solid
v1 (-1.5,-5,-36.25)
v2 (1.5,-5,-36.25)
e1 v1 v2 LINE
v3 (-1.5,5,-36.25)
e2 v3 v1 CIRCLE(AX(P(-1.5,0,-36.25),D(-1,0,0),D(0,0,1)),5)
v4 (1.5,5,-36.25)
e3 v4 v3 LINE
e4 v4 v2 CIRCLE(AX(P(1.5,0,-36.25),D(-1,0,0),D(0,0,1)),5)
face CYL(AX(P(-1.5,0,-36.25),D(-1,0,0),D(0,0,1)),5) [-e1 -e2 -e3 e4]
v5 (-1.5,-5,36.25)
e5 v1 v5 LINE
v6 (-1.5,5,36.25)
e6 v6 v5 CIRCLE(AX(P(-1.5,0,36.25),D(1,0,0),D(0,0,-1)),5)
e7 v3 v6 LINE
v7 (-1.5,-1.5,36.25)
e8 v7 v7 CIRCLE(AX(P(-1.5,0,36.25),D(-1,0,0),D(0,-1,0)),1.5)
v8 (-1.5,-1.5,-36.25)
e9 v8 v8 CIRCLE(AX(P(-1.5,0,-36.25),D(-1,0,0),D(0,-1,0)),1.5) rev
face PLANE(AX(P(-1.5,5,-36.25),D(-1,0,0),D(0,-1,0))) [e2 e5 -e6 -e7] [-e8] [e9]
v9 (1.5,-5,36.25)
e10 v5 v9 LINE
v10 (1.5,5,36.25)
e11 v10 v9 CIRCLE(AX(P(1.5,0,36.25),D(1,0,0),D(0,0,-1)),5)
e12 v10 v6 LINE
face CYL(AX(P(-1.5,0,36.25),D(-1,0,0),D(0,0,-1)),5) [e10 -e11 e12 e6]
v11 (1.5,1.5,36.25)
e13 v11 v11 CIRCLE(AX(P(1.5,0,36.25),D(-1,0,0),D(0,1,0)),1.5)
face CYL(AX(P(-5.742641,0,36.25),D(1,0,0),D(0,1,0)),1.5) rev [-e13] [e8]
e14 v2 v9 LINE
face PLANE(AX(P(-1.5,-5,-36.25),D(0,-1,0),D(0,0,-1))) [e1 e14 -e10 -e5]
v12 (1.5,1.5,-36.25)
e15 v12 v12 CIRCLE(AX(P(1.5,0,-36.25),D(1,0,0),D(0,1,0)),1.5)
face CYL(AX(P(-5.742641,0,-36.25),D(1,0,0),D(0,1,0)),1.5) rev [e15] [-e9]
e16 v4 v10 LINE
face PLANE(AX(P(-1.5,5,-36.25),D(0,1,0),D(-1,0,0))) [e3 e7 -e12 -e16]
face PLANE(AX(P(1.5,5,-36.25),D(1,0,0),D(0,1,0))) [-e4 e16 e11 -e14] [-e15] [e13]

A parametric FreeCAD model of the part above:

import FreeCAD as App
import Part
import Sketcher

V = App.Vector


def add_polygon(sketch, points):
    """Adds a closed chain of lines whose ends are joined by coincident constraints."""
    first, n = sketch.GeometryCount, len(points)
    for a, b in zip(points, points[1:] + points[:1]):
        sketch.addGeometry(Part.LineSegment(App.Vector(*a, 0), App.Vector(*b, 0)), False)
    for i in range(n):
        sketch.addConstraint(Sketcher.Constraint("Coincident", first + i, 2, first + (i + 1) % n, 1))

doc = App.newDocument("Part")
params = doc.addObject("Spreadsheet::Sheet", "Params")
for row, (alias, value) in enumerate([
    ("sketch1_width", "3 mm"),
    ("sketch1_height", "10 mm"),
    ("pad1_length", "36.25 mm"),
    ("pad1_length2", "36.25 mm"),
    ("sketch2_width", "3 mm"),
    ("sketch2_height", "5 mm"),
    ("revolution_angle", "360 deg"),
    ("sketch3_diameter", "3 mm"),
    ("pocket1_length", "3 mm"),
], start=1):
    params.set(f"A{row}", alias)
    params.set(f"B{row}", "=" + value)
    params.setAlias(f"B{row}", alias)

body = doc.addObject("PartDesign::Body", "Body")

sketch1 = doc.addObject("Sketcher::SketchObject", "Sketch")
body.addObject(sketch1)
sketch1.AttachmentSupport = (doc.XY_Plane, [""])
sketch1.MapMode = "FlatFace"
add_polygon(sketch1, [(-1.5, 5), (-1.5, -5), (1.5, -5), (1.5, 5)])
sketch1.addConstraint(Sketcher.Constraint("Vertical", 0))
sketch1.addConstraint(Sketcher.Constraint("Horizontal", 1))
sketch1.addConstraint(Sketcher.Constraint("Vertical", 2))
sketch1.addConstraint(Sketcher.Constraint("Horizontal", 3))
sketch1.addConstraint(Sketcher.Constraint("Symmetric", 0, 2, 2, 2, -1, 1))
sketch1.addConstraint(Sketcher.Constraint("DistanceX", 1, 1, 1, 2, 3.0))
sketch1.addConstraint(Sketcher.Constraint("DistanceY", 0, 2, 0, 1, 10.0))
sketch1.setExpression("Constraints[9]", "Params.sketch1_width")
sketch1.setExpression("Constraints[10]", "Params.sketch1_height")
pad1 = doc.addObject("PartDesign::Pad", "Pad")
body.addObject(pad1)
pad1.Profile = sketch1
pad1.Type = "TwoLengths"
pad1.setExpression("Length", "Params.pad1_length")
pad1.setExpression("Length2", "Params.pad1_length2")

sketch2 = doc.addObject("Sketcher::SketchObject", "Sketch001")
body.addObject(sketch2)
sketch2.AttachmentSupport = (doc.XY_Plane, [""])
sketch2.MapMode = "FlatFace"
sketch2.AttachmentOffset = App.Placement(V(0, 0, -36.25), App.Rotation())
add_polygon(sketch2, [(1.5, 0), (1.5, -5), (-1.5, -5), (-1.5, 0)])
sketch2.addConstraint(Sketcher.Constraint("Vertical", 0))
sketch2.addConstraint(Sketcher.Constraint("Horizontal", 1))
sketch2.addConstraint(Sketcher.Constraint("Vertical", 2))
sketch2.addConstraint(Sketcher.Constraint("Horizontal", 3))
sketch2.addConstraint(Sketcher.Constraint("Symmetric", 2, 2, 3, 2, -1, 1))
sketch2.addConstraint(Sketcher.Constraint("DistanceX", 1, 2, 1, 1, 3.0))
sketch2.addConstraint(Sketcher.Constraint("DistanceY", 0, 2, 0, 1, 5.0))
sketch2.setExpression("Constraints[9]", "Params.sketch2_width")
sketch2.setExpression("Constraints[10]", "Params.sketch2_height")
revolution = doc.addObject("PartDesign::Revolution", "Revolution")
body.addObject(revolution)
revolution.Profile = sketch2
revolution.ReferenceAxis = (sketch2, ["H_Axis"])
revolution.setExpression("Angle", "Params.revolution_angle")

sketch3 = doc.addObject("Sketcher::SketchObject", "Sketch002")
body.addObject(sketch3)
sketch3.AttachmentSupport = (doc.YZ_Plane, [""])
sketch3.MapMode = "FlatFace"
sketch3.AttachmentOffset = App.Placement(V(0, 0, 1.5), App.Rotation())
sketch3.addGeometry(Part.Circle(V(0, -36.2, 0), V(0, 0, 1), 1.5), False)
sketch3.addConstraint(Sketcher.Constraint("PointOnObject", 0, 3, -2))
sketch3.addConstraint(Sketcher.Constraint("Diameter", 0, 3.0))
sketch3.addConstraint(Sketcher.Constraint("DistanceY", 0, 3, -1, 1, 36.25))
sketch3.setExpression("Constraints[1]", "Params.sketch3_diameter")
pocket1 = doc.addObject("PartDesign::Pocket", "Pocket")
body.addObject(pocket1)
pocket1.Profile = sketch3
pocket1.setExpression("Length", "Params.pocket1_length")
doc.recompute()

mirrored = doc.addObject("PartDesign::Mirrored", "Mirrored")
body.addObject(mirrored)
mirrored.Originals = [revolution, pocket1]
mirrored.MirrorPlane = (doc.XY_Plane, [""])
body.Tip = mirrored

doc.recompute()
